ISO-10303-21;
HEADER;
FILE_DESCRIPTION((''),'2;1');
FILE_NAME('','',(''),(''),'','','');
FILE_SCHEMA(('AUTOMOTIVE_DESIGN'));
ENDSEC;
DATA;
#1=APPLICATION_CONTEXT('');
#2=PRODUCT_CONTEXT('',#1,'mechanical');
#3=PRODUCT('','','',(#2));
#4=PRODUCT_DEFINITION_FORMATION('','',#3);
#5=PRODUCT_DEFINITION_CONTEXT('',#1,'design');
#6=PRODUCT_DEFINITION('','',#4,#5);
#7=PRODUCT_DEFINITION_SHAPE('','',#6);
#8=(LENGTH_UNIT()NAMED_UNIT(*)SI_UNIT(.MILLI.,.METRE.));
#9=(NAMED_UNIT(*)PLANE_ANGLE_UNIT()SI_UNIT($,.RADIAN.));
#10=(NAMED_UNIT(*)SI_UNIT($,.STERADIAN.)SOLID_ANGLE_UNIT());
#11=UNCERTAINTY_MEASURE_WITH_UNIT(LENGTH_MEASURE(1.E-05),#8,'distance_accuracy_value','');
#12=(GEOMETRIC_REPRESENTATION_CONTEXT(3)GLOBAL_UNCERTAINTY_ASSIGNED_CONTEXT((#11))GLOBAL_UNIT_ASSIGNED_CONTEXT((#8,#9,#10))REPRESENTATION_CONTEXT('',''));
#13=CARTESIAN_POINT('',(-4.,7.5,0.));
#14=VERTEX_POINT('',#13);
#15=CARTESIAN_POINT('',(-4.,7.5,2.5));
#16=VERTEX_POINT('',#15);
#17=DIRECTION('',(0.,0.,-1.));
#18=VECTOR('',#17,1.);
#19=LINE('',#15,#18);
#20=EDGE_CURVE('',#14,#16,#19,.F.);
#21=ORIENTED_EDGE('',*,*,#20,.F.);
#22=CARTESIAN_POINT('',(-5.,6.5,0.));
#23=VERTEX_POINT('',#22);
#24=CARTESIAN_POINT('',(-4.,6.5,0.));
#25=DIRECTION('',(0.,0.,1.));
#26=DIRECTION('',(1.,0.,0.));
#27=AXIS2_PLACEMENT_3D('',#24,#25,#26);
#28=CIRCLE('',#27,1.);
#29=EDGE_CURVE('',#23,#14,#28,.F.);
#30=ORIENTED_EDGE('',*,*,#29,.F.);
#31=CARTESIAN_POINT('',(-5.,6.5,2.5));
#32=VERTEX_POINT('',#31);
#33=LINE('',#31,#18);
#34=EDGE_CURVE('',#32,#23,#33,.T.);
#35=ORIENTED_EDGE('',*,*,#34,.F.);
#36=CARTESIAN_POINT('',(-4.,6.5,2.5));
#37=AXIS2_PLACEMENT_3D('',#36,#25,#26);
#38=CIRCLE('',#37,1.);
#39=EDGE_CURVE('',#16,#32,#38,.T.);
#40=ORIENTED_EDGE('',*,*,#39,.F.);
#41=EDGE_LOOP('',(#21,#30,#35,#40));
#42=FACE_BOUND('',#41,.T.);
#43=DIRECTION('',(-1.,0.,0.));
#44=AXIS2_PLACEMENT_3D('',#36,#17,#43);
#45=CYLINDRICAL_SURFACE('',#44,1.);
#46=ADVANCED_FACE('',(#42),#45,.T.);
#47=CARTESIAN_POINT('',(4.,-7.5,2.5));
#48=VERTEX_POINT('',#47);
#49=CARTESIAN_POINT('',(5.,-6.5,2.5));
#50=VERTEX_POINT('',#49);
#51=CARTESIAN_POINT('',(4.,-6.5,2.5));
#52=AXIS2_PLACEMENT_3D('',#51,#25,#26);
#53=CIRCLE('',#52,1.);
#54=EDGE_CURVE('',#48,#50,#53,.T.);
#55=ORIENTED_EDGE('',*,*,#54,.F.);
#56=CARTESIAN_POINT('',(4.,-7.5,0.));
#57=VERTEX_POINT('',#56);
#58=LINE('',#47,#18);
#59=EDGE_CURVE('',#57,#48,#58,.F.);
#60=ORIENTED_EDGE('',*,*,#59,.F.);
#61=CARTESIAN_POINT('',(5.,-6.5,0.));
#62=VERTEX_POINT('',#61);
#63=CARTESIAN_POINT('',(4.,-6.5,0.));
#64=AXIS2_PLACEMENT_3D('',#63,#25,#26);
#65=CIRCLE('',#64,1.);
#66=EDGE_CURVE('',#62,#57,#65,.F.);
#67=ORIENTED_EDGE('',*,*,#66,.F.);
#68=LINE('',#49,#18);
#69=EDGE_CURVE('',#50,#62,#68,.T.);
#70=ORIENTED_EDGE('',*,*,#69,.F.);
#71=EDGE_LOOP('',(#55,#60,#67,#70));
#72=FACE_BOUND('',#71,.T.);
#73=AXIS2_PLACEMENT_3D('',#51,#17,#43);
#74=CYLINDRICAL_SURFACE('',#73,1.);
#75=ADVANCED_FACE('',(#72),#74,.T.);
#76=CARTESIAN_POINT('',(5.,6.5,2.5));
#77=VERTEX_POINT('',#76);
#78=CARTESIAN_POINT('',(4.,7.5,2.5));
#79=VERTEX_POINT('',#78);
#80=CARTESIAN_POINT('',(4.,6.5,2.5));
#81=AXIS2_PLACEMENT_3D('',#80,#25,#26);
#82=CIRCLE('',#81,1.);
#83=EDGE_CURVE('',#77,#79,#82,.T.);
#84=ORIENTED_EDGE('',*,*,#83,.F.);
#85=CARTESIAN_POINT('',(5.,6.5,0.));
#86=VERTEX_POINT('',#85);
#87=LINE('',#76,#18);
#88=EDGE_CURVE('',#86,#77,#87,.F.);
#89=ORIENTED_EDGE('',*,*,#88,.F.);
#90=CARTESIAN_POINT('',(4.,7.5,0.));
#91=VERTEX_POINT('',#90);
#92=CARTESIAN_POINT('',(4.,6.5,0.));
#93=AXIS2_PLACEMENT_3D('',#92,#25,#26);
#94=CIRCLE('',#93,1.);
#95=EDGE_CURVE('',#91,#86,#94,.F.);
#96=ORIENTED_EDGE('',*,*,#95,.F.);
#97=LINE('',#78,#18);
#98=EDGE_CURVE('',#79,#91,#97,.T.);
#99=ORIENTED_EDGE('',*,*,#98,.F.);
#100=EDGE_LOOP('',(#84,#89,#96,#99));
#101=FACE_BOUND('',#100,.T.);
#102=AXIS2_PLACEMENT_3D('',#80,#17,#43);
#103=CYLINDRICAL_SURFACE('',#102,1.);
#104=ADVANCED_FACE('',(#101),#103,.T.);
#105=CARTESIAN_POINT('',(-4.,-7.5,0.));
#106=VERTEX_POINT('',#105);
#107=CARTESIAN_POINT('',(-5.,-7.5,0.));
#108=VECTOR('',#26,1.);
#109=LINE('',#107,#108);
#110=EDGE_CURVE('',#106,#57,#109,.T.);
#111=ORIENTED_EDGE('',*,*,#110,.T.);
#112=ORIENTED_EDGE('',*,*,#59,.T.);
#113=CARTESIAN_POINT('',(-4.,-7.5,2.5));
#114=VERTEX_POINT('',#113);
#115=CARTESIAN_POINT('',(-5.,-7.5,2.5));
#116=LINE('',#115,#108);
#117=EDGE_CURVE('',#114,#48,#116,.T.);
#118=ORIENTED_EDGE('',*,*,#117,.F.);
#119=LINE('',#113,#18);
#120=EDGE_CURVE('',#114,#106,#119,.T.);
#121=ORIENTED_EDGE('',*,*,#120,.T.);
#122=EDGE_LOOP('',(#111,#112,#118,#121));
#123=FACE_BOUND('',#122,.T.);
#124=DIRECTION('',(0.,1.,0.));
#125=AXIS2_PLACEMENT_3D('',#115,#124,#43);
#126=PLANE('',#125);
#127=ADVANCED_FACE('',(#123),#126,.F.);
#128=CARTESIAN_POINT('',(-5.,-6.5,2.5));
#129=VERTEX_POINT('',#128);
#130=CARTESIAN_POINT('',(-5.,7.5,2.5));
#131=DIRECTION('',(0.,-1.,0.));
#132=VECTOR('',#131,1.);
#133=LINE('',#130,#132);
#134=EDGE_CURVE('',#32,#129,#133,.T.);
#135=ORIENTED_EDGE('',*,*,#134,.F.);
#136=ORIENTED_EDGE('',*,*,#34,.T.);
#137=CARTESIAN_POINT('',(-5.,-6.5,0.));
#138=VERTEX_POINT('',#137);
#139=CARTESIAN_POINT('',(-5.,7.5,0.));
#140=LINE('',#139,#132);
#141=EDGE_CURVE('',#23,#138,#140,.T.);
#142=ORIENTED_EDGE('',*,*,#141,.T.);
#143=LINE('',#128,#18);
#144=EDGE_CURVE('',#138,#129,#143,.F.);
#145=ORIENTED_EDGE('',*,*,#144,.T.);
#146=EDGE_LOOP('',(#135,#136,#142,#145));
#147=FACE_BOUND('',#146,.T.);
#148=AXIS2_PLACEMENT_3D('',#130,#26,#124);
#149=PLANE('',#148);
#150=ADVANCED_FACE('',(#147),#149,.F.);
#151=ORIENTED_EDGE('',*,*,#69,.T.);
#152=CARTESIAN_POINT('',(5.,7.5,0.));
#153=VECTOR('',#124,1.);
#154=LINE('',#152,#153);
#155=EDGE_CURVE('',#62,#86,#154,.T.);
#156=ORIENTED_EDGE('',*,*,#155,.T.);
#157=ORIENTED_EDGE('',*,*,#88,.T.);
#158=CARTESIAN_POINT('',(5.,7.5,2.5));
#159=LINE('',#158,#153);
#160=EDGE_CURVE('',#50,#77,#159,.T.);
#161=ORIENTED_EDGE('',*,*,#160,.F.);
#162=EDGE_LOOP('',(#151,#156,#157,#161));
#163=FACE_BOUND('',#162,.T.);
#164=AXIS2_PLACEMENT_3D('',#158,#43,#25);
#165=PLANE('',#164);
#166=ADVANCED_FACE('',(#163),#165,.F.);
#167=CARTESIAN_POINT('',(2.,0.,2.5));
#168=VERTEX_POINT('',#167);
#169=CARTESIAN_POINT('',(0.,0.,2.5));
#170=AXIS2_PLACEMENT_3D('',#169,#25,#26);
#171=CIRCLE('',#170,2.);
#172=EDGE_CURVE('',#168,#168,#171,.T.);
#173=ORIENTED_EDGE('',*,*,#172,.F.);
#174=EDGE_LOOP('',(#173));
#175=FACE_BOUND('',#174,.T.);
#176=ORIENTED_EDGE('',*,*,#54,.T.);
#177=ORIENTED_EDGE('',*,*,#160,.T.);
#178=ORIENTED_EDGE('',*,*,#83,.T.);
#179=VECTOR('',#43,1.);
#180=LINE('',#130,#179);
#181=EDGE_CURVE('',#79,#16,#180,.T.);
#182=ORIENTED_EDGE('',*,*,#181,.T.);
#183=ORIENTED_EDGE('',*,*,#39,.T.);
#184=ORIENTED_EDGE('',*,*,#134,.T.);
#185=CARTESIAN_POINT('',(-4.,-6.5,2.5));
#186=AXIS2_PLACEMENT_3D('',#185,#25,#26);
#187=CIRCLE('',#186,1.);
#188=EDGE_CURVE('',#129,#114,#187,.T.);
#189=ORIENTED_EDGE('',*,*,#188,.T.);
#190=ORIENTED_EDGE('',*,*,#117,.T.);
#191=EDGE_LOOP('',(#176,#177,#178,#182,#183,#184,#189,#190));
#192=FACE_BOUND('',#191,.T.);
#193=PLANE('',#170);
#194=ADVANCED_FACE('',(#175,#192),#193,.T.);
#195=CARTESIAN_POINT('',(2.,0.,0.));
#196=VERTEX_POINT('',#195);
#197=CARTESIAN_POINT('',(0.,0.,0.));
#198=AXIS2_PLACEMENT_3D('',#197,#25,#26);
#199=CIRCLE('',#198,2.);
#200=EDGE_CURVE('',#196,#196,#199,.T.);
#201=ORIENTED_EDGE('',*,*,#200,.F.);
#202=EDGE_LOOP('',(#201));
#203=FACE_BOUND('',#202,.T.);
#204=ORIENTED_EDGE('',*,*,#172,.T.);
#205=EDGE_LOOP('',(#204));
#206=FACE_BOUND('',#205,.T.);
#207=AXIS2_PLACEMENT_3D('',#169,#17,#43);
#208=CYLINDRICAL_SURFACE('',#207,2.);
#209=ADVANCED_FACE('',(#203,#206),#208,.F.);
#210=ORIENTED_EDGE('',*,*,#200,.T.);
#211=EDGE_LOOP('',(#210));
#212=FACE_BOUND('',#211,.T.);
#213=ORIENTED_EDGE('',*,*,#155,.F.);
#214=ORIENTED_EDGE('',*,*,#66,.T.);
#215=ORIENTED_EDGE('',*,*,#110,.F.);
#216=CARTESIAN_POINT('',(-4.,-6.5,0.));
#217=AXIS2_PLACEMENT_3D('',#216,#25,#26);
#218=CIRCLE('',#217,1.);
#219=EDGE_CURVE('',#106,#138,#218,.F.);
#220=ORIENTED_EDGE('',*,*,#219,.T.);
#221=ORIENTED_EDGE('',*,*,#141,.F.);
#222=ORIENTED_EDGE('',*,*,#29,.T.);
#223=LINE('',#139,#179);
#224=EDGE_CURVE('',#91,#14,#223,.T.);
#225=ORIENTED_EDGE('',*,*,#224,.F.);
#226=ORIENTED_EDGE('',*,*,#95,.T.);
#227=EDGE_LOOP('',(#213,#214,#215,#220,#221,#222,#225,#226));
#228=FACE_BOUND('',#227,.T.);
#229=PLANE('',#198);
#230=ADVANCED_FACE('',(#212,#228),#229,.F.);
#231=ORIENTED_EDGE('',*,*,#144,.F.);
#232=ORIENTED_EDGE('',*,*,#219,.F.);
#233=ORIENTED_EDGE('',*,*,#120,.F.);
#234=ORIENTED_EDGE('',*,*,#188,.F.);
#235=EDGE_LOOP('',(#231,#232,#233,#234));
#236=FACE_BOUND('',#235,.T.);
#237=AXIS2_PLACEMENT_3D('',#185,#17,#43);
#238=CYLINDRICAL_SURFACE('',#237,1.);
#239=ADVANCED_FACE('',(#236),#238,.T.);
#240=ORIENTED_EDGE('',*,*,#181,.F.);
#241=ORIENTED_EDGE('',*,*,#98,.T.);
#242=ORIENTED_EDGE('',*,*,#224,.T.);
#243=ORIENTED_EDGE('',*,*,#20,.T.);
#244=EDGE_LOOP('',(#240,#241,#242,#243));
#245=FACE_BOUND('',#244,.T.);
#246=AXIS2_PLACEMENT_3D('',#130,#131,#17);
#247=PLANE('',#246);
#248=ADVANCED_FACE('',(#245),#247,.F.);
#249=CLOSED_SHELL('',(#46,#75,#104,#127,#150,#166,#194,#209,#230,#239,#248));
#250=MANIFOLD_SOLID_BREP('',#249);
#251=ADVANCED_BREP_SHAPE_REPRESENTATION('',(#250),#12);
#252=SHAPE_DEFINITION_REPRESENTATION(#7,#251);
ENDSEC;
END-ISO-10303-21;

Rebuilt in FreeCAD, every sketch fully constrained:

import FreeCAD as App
import Part
import Sketcher


def edges_at(feature, points):
    """Names of the edges that pass closest to the given points."""
    edges = feature.Shape.Edges
    near = lambda p: min(range(len(edges)), key=lambda i: edges[i].distToShape(Part.Vertex(*p))[0])
    return sorted({f"Edge{near(p) + 1}" for p in points})


def add_polygon(sketch, points):
    """Adds a closed chain of lines whose ends are joined by coincident constraints."""
    first, n = sketch.GeometryCount, len(points)
    for a, b in zip(points, points[1:] + points[:1]):
        sketch.addGeometry(Part.LineSegment(App.Vector(*a, 0), App.Vector(*b, 0)), False)
    for i in range(n):
        sketch.addConstraint(Sketcher.Constraint("Coincident", first + i, 2, first + (i + 1) % n, 1))

doc = App.newDocument("Part")
body = doc.addObject("PartDesign::Body", "Body")

sketch1 = body.newObject("Sketcher::SketchObject", "Sketch")
sketch1.AttachmentSupport = (doc.getObject("XY_Plane"), [""])
sketch1.MapMode = "FlatFace"
add_polygon(sketch1, [(-5, 7.5), (-5, -7.5), (5, -7.5), (5, 7.5)])
sketch1.addGeometry(Part.Circle(App.Vector(0, 0, 0), App.Vector(0, 0, 1), 2), False)
sketch1.addConstraint([
    Sketcher.Constraint("Vertical", 0),
    Sketcher.Constraint("Horizontal", 1),
    Sketcher.Constraint("Vertical", 2),
    Sketcher.Constraint("Horizontal", 3),
    Sketcher.Constraint("Coincident", 4, 3, -1, 1),
    Sketcher.Constraint("Symmetric", 0, 2, 2, 2, -1, 1),
    Sketcher.Constraint("Diameter", 4, 4.0),
    Sketcher.Constraint("DistanceX", 1, 1, 1, 2, 10.0),
    Sketcher.Constraint("DistanceY", 0, 2, 0, 1, 15.0),
])
pad1 = body.newObject("PartDesign::Pad", "Pad")
pad1.Profile = sketch1
pad1.Length = 2.5
doc.recompute()

fillet = body.newObject("PartDesign::Fillet", "Fillet")
fillet.Base = (pad1, edges_at(pad1, [
    (5, -7.5, 1.25),
    (-5, -7.5, 1.25),
    (-5, 7.5, 1.25),
    (5, 7.5, 1.25),
]))
fillet.Radius = 1

doc.recompute()
